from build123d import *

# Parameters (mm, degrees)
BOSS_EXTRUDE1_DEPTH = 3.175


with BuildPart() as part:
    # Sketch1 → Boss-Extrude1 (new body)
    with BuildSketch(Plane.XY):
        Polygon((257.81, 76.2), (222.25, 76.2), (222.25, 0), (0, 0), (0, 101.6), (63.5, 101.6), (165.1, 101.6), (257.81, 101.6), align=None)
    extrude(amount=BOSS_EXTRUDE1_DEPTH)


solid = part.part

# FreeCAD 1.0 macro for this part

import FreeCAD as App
import Part
import Sketcher
Q = App.Units.Quantity

doc = App.newDocument("Part")
body = doc.addObject("PartDesign::Body", "Body")

sketch1 = body.newObject("Sketcher::SketchObject", "Sketch")
sketch1.AttachmentSupport = (doc.getObject("XY_Plane"), [""])
sketch1.MapMode = "FlatFace"
sketch1.addGeometry([
    Part.LineSegment(App.Vector(222, 76, 0), App.Vector(258, 76, 0)),
    Part.LineSegment(App.Vector(258, 76, 0), App.Vector(258, 102, 0)),
    Part.LineSegment(App.Vector(258, 102, 0), App.Vector(0, 102, 0)),
    Part.LineSegment(App.Vector(0, 102, 0), App.Vector(0, 0, 0)),
    Part.LineSegment(App.Vector(0, 0, 0), App.Vector(222, 0, 0)),
    Part.LineSegment(App.Vector(222, 0, 0), App.Vector(222, 76, 0)),
], False)
sketch1.addConstraint([
    Sketcher.Constraint("Coincident", 0, 2, 1, 1),
    Sketcher.Constraint("Coincident", 1, 2, 2, 1),
    Sketcher.Constraint("Coincident", 2, 2, 3, 1),
    Sketcher.Constraint("Coincident", 3, 2, 4, 1),
    Sketcher.Constraint("Coincident", 4, 2, 5, 1),
    Sketcher.Constraint("Coincident", 5, 2, 0, 1),
    Sketcher.Constraint("Horizontal", 0),
    Sketcher.Constraint("Vertical", 1),
    Sketcher.Constraint("Horizontal", 2),
    Sketcher.Constraint("Vertical", 3),
    Sketcher.Constraint("Horizontal", 4),
    Sketcher.Constraint("Vertical", 5),
    Sketcher.Constraint("Coincident", 3, 2, -1, 1),
    Sketcher.Constraint("DistanceY", 1, 1, 1, 2, Q("1 in")),
    Sketcher.Constraint("DistanceY", 3, 2, 3, 1, Q("4 in")),
    Sketcher.Constraint("DistanceX", 0, 1, 0, 2, Q("1.4 in")),
    Sketcher.Constraint("DistanceX", 2, 2, 2, 1, Q("10.15 in")),
])
pad1 = body.newObject("PartDesign::Pad", "Pad")
pad1.Profile = sketch1
pad1.Length = Q("0.125 in")

doc.recompute()
